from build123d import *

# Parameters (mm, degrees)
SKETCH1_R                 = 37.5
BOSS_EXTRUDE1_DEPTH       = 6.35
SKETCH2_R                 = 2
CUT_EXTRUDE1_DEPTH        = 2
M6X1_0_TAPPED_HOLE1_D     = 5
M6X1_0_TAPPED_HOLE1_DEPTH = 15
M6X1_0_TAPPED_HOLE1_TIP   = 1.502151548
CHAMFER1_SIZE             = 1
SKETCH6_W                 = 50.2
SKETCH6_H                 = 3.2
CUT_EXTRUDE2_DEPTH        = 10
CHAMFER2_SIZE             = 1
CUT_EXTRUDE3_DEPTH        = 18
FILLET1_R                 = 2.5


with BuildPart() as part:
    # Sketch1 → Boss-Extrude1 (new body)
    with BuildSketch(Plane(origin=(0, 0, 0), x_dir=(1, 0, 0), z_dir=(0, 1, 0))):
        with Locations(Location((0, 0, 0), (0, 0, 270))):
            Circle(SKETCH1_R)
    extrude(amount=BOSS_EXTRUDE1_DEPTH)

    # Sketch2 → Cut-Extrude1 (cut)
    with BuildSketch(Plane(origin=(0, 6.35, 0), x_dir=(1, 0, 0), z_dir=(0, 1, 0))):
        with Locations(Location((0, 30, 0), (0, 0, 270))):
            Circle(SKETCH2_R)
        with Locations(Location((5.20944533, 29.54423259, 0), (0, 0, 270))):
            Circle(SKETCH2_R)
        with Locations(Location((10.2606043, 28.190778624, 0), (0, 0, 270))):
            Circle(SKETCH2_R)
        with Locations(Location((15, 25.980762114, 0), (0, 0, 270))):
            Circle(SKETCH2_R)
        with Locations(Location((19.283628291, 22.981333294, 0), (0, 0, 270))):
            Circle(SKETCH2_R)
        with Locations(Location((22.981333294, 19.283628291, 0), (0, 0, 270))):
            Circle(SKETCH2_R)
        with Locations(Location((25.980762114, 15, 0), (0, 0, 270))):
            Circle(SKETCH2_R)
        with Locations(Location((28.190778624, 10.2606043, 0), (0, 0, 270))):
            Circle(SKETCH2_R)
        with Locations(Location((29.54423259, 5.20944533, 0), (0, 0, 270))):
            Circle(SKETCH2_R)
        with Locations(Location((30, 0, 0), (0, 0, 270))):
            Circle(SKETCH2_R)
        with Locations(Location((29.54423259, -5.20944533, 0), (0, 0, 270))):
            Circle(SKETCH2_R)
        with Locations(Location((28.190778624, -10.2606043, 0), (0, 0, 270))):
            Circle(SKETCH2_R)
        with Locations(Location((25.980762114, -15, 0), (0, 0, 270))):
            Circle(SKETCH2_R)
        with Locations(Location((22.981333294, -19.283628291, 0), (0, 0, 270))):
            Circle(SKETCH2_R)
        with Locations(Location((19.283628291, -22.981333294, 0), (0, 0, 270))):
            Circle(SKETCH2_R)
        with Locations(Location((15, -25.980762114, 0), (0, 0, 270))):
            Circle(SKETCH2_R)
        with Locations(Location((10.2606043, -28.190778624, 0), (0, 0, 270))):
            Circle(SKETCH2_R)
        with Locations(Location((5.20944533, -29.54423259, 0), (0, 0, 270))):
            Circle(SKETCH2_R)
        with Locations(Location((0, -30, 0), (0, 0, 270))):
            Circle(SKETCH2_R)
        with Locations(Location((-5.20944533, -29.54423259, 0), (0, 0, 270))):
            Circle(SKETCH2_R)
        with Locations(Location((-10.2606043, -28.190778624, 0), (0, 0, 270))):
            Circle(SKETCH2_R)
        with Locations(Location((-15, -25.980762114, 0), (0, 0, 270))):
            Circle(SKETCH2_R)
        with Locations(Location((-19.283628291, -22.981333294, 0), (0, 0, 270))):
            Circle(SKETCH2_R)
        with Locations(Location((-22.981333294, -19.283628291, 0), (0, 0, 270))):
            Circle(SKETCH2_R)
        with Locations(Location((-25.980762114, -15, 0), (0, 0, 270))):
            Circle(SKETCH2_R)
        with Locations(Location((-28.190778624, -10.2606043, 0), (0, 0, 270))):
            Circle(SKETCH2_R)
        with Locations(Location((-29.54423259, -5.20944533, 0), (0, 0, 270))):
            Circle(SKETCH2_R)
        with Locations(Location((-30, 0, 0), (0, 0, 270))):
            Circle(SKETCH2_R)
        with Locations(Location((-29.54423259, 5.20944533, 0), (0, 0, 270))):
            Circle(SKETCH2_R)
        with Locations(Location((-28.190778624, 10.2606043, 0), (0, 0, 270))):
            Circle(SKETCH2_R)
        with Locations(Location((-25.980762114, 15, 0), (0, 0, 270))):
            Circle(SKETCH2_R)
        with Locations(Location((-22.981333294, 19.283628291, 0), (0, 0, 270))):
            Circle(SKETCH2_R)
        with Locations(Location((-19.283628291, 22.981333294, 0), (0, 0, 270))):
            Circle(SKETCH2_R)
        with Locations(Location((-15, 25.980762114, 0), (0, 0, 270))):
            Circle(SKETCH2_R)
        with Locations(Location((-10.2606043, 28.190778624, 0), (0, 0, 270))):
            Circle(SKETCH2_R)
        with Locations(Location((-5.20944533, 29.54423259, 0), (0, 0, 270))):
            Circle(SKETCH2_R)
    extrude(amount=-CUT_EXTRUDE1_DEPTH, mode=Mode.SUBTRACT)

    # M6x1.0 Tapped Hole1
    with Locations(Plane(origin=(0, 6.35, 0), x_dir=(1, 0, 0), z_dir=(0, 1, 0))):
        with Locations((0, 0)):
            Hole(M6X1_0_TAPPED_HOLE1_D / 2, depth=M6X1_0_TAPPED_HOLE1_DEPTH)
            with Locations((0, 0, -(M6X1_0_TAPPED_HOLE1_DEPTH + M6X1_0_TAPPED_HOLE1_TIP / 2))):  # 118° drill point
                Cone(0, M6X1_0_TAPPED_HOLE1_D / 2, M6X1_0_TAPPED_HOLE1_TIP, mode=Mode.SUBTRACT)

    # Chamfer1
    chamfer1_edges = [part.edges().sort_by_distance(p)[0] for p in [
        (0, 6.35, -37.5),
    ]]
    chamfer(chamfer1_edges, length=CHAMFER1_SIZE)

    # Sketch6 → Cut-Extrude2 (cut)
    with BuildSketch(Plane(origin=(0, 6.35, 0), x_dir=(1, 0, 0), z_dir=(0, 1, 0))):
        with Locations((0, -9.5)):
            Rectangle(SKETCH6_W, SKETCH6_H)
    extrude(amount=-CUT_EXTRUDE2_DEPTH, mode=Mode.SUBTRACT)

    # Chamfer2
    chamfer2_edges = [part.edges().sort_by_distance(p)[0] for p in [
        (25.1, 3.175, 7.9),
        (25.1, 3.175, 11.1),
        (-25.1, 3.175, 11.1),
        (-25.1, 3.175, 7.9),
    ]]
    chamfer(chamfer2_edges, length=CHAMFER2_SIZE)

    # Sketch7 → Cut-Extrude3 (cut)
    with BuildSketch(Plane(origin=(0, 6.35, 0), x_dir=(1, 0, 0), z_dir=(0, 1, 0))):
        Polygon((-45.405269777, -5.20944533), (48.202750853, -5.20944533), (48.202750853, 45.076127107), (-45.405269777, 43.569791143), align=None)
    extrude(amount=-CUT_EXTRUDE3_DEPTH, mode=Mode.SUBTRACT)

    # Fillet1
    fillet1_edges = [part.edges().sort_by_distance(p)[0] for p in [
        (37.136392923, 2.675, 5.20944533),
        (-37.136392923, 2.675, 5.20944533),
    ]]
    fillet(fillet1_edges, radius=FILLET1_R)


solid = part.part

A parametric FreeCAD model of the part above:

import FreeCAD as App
import Part
import Sketcher
from FreeCAD import Vector
Q = App.Units.Quantity


def edges_at(feature, points):
    """Names of the edges that pass closest to the given points."""
    edges = feature.Shape.Edges
    near = lambda p: min(range(len(edges)), key=lambda i: edges[i].distToShape(Part.Vertex(*p))[0])
    return sorted({f"Edge{near(p) + 1}" for p in points})

doc = App.newDocument("Part")
params = doc.addObject("Spreadsheet::Sheet", "Params")
for row, (alias, value) in enumerate([
    ("sketch1_diameter", "75 mm"),
    ("pad1_length", "6.35 mm"),
    ("sketch2_diameter", "4 mm"),
    ("pocket1_length", "2 mm"),
    ("sketch3_diameter", "5 mm"),
    ("hole_diameter", "5 mm"),
    ("hole_depth", "15 mm"),
    ("chamfer_size", "1 mm"),
    ("sketch4_width", "50.2 mm"),
    ("sketch4_height", "3.2 mm"),
    ("pocket2_length", "10 mm"),
    ("chamfer2_size", "1 mm"),
    ("pocket3_length", "18 mm"),
    ("fillet_radius", "2.5 mm"),
], start=1):
    params.set(f"A{row}", alias)
    params.set(f"B{row}", "=" + value)
    params.setAlias(f"B{row}", alias)

body = doc.addObject("PartDesign::Body", "Body")

# Sketch on XZ plane
sketch1 = body.newObject("Sketcher::SketchObject", "Sketch")
sketch1.AttachmentSupport = (doc.getObject("XZ_Plane"), [""])
sketch1.MapMode = "FlatFace"
sketch1.addGeometry(Part.Circle(Vector(0, 0, 0), Vector(0, 0, 1), 38), False)
sketch1.addConstraint([
    Sketcher.Constraint("Coincident", 0, 3, -1, 1),
    Sketcher.Constraint("Diameter", 0, Q("75 mm")),
])
sketch1.setExpression("Constraints[1]", "Params.sketch1_diameter")
pad1 = body.newObject("PartDesign::Pad", "Pad")
pad1.Profile = sketch1
pad1.setExpression("Length", "Params.pad1_length")
pad1.Reversed = True

# Sketch on XZ plane
sketch2 = body.newObject("Sketcher::SketchObject", "Sketch001")
sketch2.AttachmentSupport = (doc.getObject("XZ_Plane"), [""])
sketch2.MapMode = "FlatFace"
sketch2.AttachmentOffset = App.Placement(Vector(0, 0, -6.35), App.Rotation())
sketch2.addGeometry([
    Part.Circle(Vector(0, -30, 0), Vector(0, 0, 1), 2),  # 0
    Part.Circle(Vector(5.2, -29.5, 0), Vector(0, 0, 1), 2),  # 1
    Part.Circle(Vector(10.3, -28.2, 0), Vector(0, 0, 1), 2),  # 2
    Part.Circle(Vector(15, -26, 0), Vector(0, 0, 1), 2),  # 3
    Part.Circle(Vector(19.3, -23, 0), Vector(0, 0, 1), 2),  # 4
    Part.Circle(Vector(23, -19.3, 0), Vector(0, 0, 1), 2),  # 5
    Part.Circle(Vector(26, -15, 0), Vector(0, 0, 1), 2),  # 6
    Part.Circle(Vector(28.2, -10.3, 0), Vector(0, 0, 1), 2),  # 7
    Part.Circle(Vector(29.5, -5.2, 0), Vector(0, 0, 1), 2),  # 8
    Part.Circle(Vector(30, 0, 0), Vector(0, 0, 1), 2),  # 9
    Part.Circle(Vector(29.5, 5.2, 0), Vector(0, 0, 1), 2),  # 10
    Part.Circle(Vector(28.2, 10.3, 0), Vector(0, 0, 1), 2),  # 11
    Part.Circle(Vector(26, 15, 0), Vector(0, 0, 1), 2),  # 12
    Part.Circle(Vector(23, 19.3, 0), Vector(0, 0, 1), 2),  # 13
    Part.Circle(Vector(19.3, 23, 0), Vector(0, 0, 1), 2),  # 14
    Part.Circle(Vector(15, 26, 0), Vector(0, 0, 1), 2),  # 15
    Part.Circle(Vector(10.3, 28.2, 0), Vector(0, 0, 1), 2),  # 16
    Part.Circle(Vector(5.2, 29.5, 0), Vector(0, 0, 1), 2),  # 17
    Part.Circle(Vector(0, 30, 0), Vector(0, 0, 1), 2),  # 18
    Part.Circle(Vector(-5.2, 29.5, 0), Vector(0, 0, 1), 2),  # 19
    Part.Circle(Vector(-10.3, 28.2, 0), Vector(0, 0, 1), 2),  # 20
    Part.Circle(Vector(-15, 26, 0), Vector(0, 0, 1), 2),  # 21
    Part.Circle(Vector(-19.3, 23, 0), Vector(0, 0, 1), 2),  # 22
    Part.Circle(Vector(-23, 19.3, 0), Vector(0, 0, 1), 2),  # 23
    Part.Circle(Vector(-26, 15, 0), Vector(0, 0, 1), 2),  # 24
    Part.Circle(Vector(-28.2, 10.3, 0), Vector(0, 0, 1), 2),  # 25
    Part.Circle(Vector(-29.5, 5.2, 0), Vector(0, 0, 1), 2),  # 26
    Part.Circle(Vector(-30, 0, 0), Vector(0, 0, 1), 2),  # 27
    Part.Circle(Vector(-29.5, -5.2, 0), Vector(0, 0, 1), 2),  # 28
    Part.Circle(Vector(-28.2, -10.3, 0), Vector(0, 0, 1), 2),  # 29
    Part.Circle(Vector(-26, -15, 0), Vector(0, 0, 1), 2),  # 30
    Part.Circle(Vector(-23, -19.3, 0), Vector(0, 0, 1), 2),  # 31
    Part.Circle(Vector(-19.3, -23, 0), Vector(0, 0, 1), 2),  # 32
    Part.Circle(Vector(-15, -26, 0), Vector(0, 0, 1), 2),  # 33
    Part.Circle(Vector(-10.3, -28.2, 0), Vector(0, 0, 1), 2),  # 34
    Part.Circle(Vector(-5.2, -29.5, 0), Vector(0, 0, 1), 2),  # 35
], False)
sketch2.addConstraint([
    Sketcher.Constraint("Equal", 0, 1),
    Sketcher.Constraint("Equal", 1, 2),
    Sketcher.Constraint("Equal", 2, 3),
    Sketcher.Constraint("Equal", 3, 4),
    Sketcher.Constraint("Equal", 4, 5),
    Sketcher.Constraint("Equal", 5, 6),
    Sketcher.Constraint("Equal", 6, 7),
    Sketcher.Constraint("Equal", 7, 8),
    Sketcher.Constraint("Equal", 8, 9),
    Sketcher.Constraint("Equal", 9, 10),
    Sketcher.Constraint("Equal", 10, 11),
    Sketcher.Constraint("Equal", 11, 12),
    Sketcher.Constraint("Equal", 12, 13),
    Sketcher.Constraint("Equal", 13, 14),
    Sketcher.Constraint("Equal", 14, 15),
    Sketcher.Constraint("Equal", 15, 16),
    Sketcher.Constraint("Equal", 16, 17),
    Sketcher.Constraint("Equal", 17, 18),
    Sketcher.Constraint("Equal", 18, 19),
    Sketcher.Constraint("Equal", 19, 20),
    Sketcher.Constraint("Equal", 20, 21),
    Sketcher.Constraint("Equal", 21, 22),
    Sketcher.Constraint("Equal", 22, 23),
    Sketcher.Constraint("Equal", 23, 24),
    Sketcher.Constraint("Equal", 24, 25),
    Sketcher.Constraint("Equal", 25, 26),
    Sketcher.Constraint("Equal", 26, 27),
    Sketcher.Constraint("Equal", 27, 28),
    Sketcher.Constraint("Equal", 28, 29),
    Sketcher.Constraint("Equal", 29, 30),
    Sketcher.Constraint("Equal", 30, 31),
    Sketcher.Constraint("Equal", 31, 32),
    Sketcher.Constraint("Equal", 32, 33),
    Sketcher.Constraint("Equal", 33, 34),
    Sketcher.Constraint("Equal", 34, 35),
    Sketcher.Constraint("Symmetric", 0, 3, 18, 3, -1, 1),
    Sketcher.Constraint("Symmetric", 1, 3, 19, 3, -1, 1),
    Sketcher.Constraint("Symmetric", 2, 3, 20, 3, -1, 1),
    Sketcher.Constraint("Symmetric", 3, 3, 21, 3, -1, 1),
    Sketcher.Constraint("Symmetric", 4, 3, 22, 3, -1, 1),
    Sketcher.Constraint("Symmetric", 5, 3, 23, 3, -1, 1),
    Sketcher.Constraint("Symmetric", 6, 3, 24, 3, -1, 1),
    Sketcher.Constraint("Symmetric", 7, 3, 25, 3, -1, 1),
    Sketcher.Constraint("Symmetric", 8, 3, 26, 3, -1, 1),
    Sketcher.Constraint("Symmetric", 9, 3, 27, 3, -1, 1),
    Sketcher.Constraint("Symmetric", 10, 3, 28, 3, -1, 1),
    Sketcher.Constraint("Symmetric", 11, 3, 29, 3, -1, 1),
    Sketcher.Constraint("Symmetric", 12, 3, 30, 3, -1, 1),
    Sketcher.Constraint("Symmetric", 13, 3, 31, 3, -1, 1),
    Sketcher.Constraint("Symmetric", 14, 3, 32, 3, -1, 1),
    Sketcher.Constraint("Symmetric", 15, 3, 33, 3, -1, 1),
    Sketcher.Constraint("Symmetric", 16, 3, 34, 3, -1, 1),
    Sketcher.Constraint("Symmetric", 17, 3, 35, 3, -1, 1),
    Sketcher.Constraint("Symmetric", 17, 3, 19, 3, -2),
    Sketcher.Constraint("Symmetric", 16, 3, 20, 3, -2),
    Sketcher.Constraint("Symmetric", 15, 3, 21, 3, -2),
    Sketcher.Constraint("Symmetric", 14, 3, 22, 3, -2),
    Sketcher.Constraint("Symmetric", 13, 3, 23, 3, -2),
    Sketcher.Constraint("Symmetric", 12, 3, 24, 3, -2),
    Sketcher.Constraint("Symmetric", 11, 3, 25, 3, -2),
    Sketcher.Constraint("Symmetric", 10, 3, 26, 3, -2),
    Sketcher.Constraint("PointOnObject", 0, 3, -2),
    Sketcher.Constraint("PointOnObject", 9, 3, -1),
    Sketcher.Constraint("Diameter", 0, Q("4 mm")),
    Sketcher.Constraint("DistanceY", 0, 3, -1, 1, Q("30 mm")),
    Sketcher.Constraint("DistanceX", -1, 1, 3, 3, Q("15 mm")),
    Sketcher.Constraint("DistanceY", 6, 3, -1, 1, Q("15 mm")),
    Sketcher.Constraint("DistanceX", -1, 1, 9, 3, Q("30 mm")),
    Sketcher.Constraint("DistanceY", 1, 3, 4, 3, Q("6.562899 mm")),
    Sketcher.Constraint("DistanceX", 5, 3, 8, 3, Q("6.562899 mm")),
    Sketcher.Constraint("DistanceY", 2, 3, -1, 1, Q("28.190779 mm")),
    Sketcher.Constraint("DistanceX", -1, 1, 4, 3, Q("19.283628 mm")),
    Sketcher.Constraint("DistanceY", 5, 3, -1, 1, Q("19.283628 mm")),
    Sketcher.Constraint("DistanceX", -1, 1, 7, 3, Q("28.190779 mm")),
    Sketcher.Constraint("DistanceX", 1, 3, 2, 3, Q("5.051159 mm")),
    Sketcher.Constraint("DistanceY", 1, 3, 3, 3, Q("3.56347 mm")),
    Sketcher.Constraint("DistanceX", 2, 3, 5, 3, Q("12.720729 mm")),
    Sketcher.Constraint("DistanceX", 5, 3, 6, 3, Q("2.999429 mm")),
    Sketcher.Constraint("DistanceY", 4, 3, 7, 3, Q("12.720729 mm")),
    Sketcher.Constraint("DistanceY", 7, 3, 8, 3, Q("5.051159 mm")),
    Sketcher.Constraint("DistanceY", 8, 3, 10, 3, Q("10.418891 mm")),
    Sketcher.Constraint("DistanceX", 19, 3, 17, 3, Q("10.418891 mm")),
])
sketch2.setExpression("Constraints[63]", "Params.sketch2_diameter")
pocket1 = body.newObject("PartDesign::Pocket", "Pocket")
pocket1.Profile = sketch2
pocket1.setExpression("Length", "Params.pocket1_length")
pocket1.Reversed = True

# Sketch on XZ plane
sketch3 = body.newObject("Sketcher::SketchObject", "Sketch002")
sketch3.AttachmentSupport = (doc.getObject("XZ_Plane"), [""])
sketch3.MapMode = "FlatFace"
sketch3.AttachmentOffset = App.Placement(Vector(0, 0, -6.35), App.Rotation())
sketch3.addGeometry(Part.Circle(Vector(0, 0, 0), Vector(0, 0, 1), 2.5), False)
sketch3.addConstraint([
    Sketcher.Constraint("Coincident", 0, 3, -1, 1),
    Sketcher.Constraint("Diameter", 0, Q("5 mm")),
])
sketch3.setExpression("Constraints[1]", "Params.sketch3_diameter")
doc.recompute()
hole = body.newObject("PartDesign::Hole", "Hole")
hole.Profile = sketch3
hole.ThreadType = "None"
hole.setExpression("Diameter", "Params.hole_diameter")
hole.DepthType = "Dimension"
hole.setExpression("Depth", "Params.hole_depth")
hole.DrillPoint = "Angled"
hole.DrillPointAngle = 118
hole.Reversed = True
doc.recompute()

chamfer = body.newObject("PartDesign::Chamfer", "Chamfer")
chamfer.Base = (hole, edges_at(hole, [(0, 6.35, -37.5)]))
chamfer.setExpression("Size", "Params.chamfer_size")

# Sketch on XZ plane
sketch4 = body.newObject("Sketcher::SketchObject", "Sketch003")
sketch4.AttachmentSupport = (doc.getObject("XZ_Plane"), [""])
sketch4.MapMode = "FlatFace"
sketch4.AttachmentOffset = App.Placement(Vector(0, 0, -6.35), App.Rotation())
sketch4.addGeometry([
    Part.LineSegment(Vector(-25.1, 7.9, 0), Vector(-25.1, 11.1, 0)),
    Part.LineSegment(Vector(-25.1, 11.1, 0), Vector(25.1, 11.1, 0)),
    Part.LineSegment(Vector(25.1, 11.1, 0), Vector(25.1, 7.9, 0)),
    Part.LineSegment(Vector(25.1, 7.9, 0), Vector(-25.1, 7.9, 0)),
], False)
sketch4.addConstraint([
    Sketcher.Constraint("Coincident", 0, 2, 1, 1),
    Sketcher.Constraint("Coincident", 1, 2, 2, 1),
    Sketcher.Constraint("Coincident", 2, 2, 3, 1),
    Sketcher.Constraint("Coincident", 3, 2, 0, 1),
    Sketcher.Constraint("Vertical", 0),
    Sketcher.Constraint("Horizontal", 1),
    Sketcher.Constraint("Vertical", 2),
    Sketcher.Constraint("Horizontal", 3),
    Sketcher.Constraint("DistanceX", 1, 1, 1, 2, Q("50.2 mm")),
    Sketcher.Constraint("DistanceY", 0, 1, 0, 2, Q("3.2 mm")),
    Sketcher.Constraint("DistanceX", 0, 2, -1, 1, Q("25.1 mm")),
    Sketcher.Constraint("DistanceY", -1, 1, 0, 2, Q("11.1 mm")),
])
sketch4.setExpression("Constraints[8]", "Params.sketch4_width")
sketch4.setExpression("Constraints[9]", "Params.sketch4_height")
pocket2 = body.newObject("PartDesign::Pocket", "Pocket001")
pocket2.Profile = sketch4
pocket2.setExpression("Length", "Params.pocket2_length")
pocket2.Reversed = True
doc.recompute()

chamfer2 = body.newObject("PartDesign::Chamfer", "Chamfer001")
chamfer2.Base = (pocket2, edges_at(pocket2, [
    (25.1, 3.175, 7.9),
    (25.1, 3.175, 11.1),
    (-25.1, 3.175, 11.1),
    (-25.1, 3.175, 7.9),
]))
chamfer2.setExpression("Size", "Params.chamfer2_size")

# Sketch on XZ plane
sketch5 = body.newObject("Sketcher::SketchObject", "Sketch004")
sketch5.AttachmentSupport = (doc.getObject("XZ_Plane"), [""])
sketch5.MapMode = "FlatFace"
sketch5.AttachmentOffset = App.Placement(Vector(0, 0, -6.35), App.Rotation())
sketch5.addGeometry([
    Part.LineSegment(Vector(-45, 5, 0), Vector(48, 5, 0)),
    Part.LineSegment(Vector(48, 5, 0), Vector(48, -45, 0)),
    Part.LineSegment(Vector(48, -45, 0), Vector(-45, -44, 0)),
    Part.LineSegment(Vector(-45, -44, 0), Vector(-45, 5, 0)),
], False)
sketch5.addConstraint([
    Sketcher.Constraint("Coincident", 0, 2, 1, 1),
    Sketcher.Constraint("Coincident", 1, 2, 2, 1),
    Sketcher.Constraint("Coincident", 2, 2, 3, 1),
    Sketcher.Constraint("Coincident", 3, 2, 0, 1),
    Sketcher.Constraint("Horizontal", 0),
    Sketcher.Constraint("Vertical", 1),
    Sketcher.Constraint("Vertical", 3),
    Sketcher.Constraint("DistanceX", 0, 1, 0, 2, Q("93.608021 mm")),
    Sketcher.Constraint("Distance", 2, Q("93.62014 mm")),
    Sketcher.Constraint("DistanceY", 1, 2, 1, 1, Q("50.285572 mm")),
    Sketcher.Constraint("DistanceX", -1, 1, 0, 2, Q("48.202751 mm")),
    Sketcher.Constraint("DistanceY", 2, 2, -1, 1, Q("43.569791 mm")),
])
pocket3 = body.newObject("PartDesign::Pocket", "Pocket002")
pocket3.Profile = sketch5
pocket3.setExpression("Length", "Params.pocket3_length")
pocket3.Reversed = True
doc.recompute()

fillet = body.newObject("PartDesign::Fillet", "Fillet")
fillet.Base = (pocket3, edges_at(pocket3, [(37.136, 2.675, 5.209), (-37.136, 2.675, 5.209)]))
fillet.setExpression("Radius", "Params.fillet_radius")

doc.recompute()
